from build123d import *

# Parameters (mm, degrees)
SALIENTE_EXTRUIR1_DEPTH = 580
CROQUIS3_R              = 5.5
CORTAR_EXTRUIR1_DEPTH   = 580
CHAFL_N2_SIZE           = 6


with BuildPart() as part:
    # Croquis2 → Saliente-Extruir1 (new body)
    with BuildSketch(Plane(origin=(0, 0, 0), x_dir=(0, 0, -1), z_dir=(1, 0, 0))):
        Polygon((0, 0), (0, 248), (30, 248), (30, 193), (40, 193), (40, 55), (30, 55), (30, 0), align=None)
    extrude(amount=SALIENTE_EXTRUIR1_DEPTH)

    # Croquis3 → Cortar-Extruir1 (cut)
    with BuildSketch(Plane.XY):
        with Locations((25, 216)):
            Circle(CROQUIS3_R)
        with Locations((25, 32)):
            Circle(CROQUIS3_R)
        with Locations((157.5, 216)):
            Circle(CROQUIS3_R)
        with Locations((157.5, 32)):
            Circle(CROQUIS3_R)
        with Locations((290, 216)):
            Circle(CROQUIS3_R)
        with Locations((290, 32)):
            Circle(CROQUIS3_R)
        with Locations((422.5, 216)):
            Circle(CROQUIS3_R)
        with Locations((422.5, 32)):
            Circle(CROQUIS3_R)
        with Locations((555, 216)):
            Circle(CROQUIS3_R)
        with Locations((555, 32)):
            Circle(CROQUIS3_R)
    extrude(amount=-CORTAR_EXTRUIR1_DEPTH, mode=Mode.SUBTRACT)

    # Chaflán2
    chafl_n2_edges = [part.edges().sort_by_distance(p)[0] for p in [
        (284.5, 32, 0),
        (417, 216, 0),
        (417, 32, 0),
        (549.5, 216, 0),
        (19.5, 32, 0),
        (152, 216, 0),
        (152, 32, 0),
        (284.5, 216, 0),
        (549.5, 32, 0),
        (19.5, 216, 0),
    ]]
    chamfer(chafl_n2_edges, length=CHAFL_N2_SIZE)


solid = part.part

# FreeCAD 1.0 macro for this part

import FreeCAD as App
import Part
import Sketcher
from FreeCAD import Vector
Q = App.Units.Quantity


def edges_at(feature, points):
    """Names of the edges that pass closest to the given points."""
    edges = feature.Shape.Edges
    near = lambda p: min(range(len(edges)), key=lambda i: edges[i].distToShape(Part.Vertex(*p))[0])
    return sorted({f"Edge{near(p) + 1}" for p in points})


def add_polygon(sketch, points):
    """Adds a closed chain of lines whose ends are joined by coincident constraints."""
    first, n = sketch.GeometryCount, len(points)
    for a, b in zip(points, points[1:] + points[:1]):
        sketch.addGeometry(Part.LineSegment(App.Vector(*a, 0), App.Vector(*b, 0)), False)
    for i in range(n):
        sketch.addConstraint(Sketcher.Constraint("Coincident", first + i, 2, first + (i + 1) % n, 1))

doc = App.newDocument("Part")
body = doc.addObject("PartDesign::Body", "Body")

# Sketch on YZ plane
sketch1 = body.newObject("Sketcher::SketchObject", "Sketch")
sketch1.AttachmentSupport = (doc.getObject("YZ_Plane"), [""])
sketch1.MapMode = "FlatFace"
add_polygon(sketch1, [(248, 0), (0, 0), (0, -30), (55, -30), (55, -40), (193, -40), (193, -30), (248, -30)])  # lines 0-7
sketch1.addConstraint([
    Sketcher.Constraint("Horizontal", 0),
    Sketcher.Constraint("Vertical", 1),
    Sketcher.Constraint("Horizontal", 2),
    Sketcher.Constraint("Vertical", 3),
    Sketcher.Constraint("Horizontal", 4),
    Sketcher.Constraint("Vertical", 5),
    Sketcher.Constraint("Horizontal", 6),
    Sketcher.Constraint("Vertical", 7),
    Sketcher.Constraint("Coincident", 0, 2, -1, 1),
    Sketcher.Constraint("Horizontal", 2, 2, 5, 2),
    Sketcher.Constraint("Equal", 2, 6),
    Sketcher.Constraint("DistanceX", 0, 2, 0, 1, Q("248 mm")),
    Sketcher.Constraint("DistanceX", 2, 1, 2, 2, Q("55 mm")),
    Sketcher.Constraint("DistanceY", 1, 2, 1, 1, Q("30 mm")),
    Sketcher.Constraint("DistanceY", 3, 2, 3, 1, Q("10 mm")),
])
pad1 = body.newObject("PartDesign::Pad", "Pad")
pad1.Profile = sketch1
pad1.Length = 580

# Sketch on XY plane
sketch2 = body.newObject("Sketcher::SketchObject", "Sketch001")
sketch2.AttachmentSupport = (doc.getObject("XY_Plane"), [""])
sketch2.MapMode = "FlatFace"
sketch2.addGeometry([
    Part.Circle(Vector(25, 216, 0), Vector(0, 0, 1), 6),  # 0
    Part.Circle(Vector(25, 32, 0), Vector(0, 0, 1), 6),  # 1
    Part.Circle(Vector(158, 216, 0), Vector(0, 0, 1), 6),  # 2
    Part.Circle(Vector(158, 32, 0), Vector(0, 0, 1), 6),  # 3
    Part.Circle(Vector(290, 216, 0), Vector(0, 0, 1), 6),  # 4
    Part.Circle(Vector(290, 32, 0), Vector(0, 0, 1), 6),  # 5
    Part.Circle(Vector(422, 216, 0), Vector(0, 0, 1), 6),  # 6
    Part.Circle(Vector(422, 32, 0), Vector(0, 0, 1), 6),  # 7
    Part.Circle(Vector(555, 216, 0), Vector(0, 0, 1), 6),  # 8
    Part.Circle(Vector(555, 32, 0), Vector(0, 0, 1), 6),  # 9
], False)
sketch2.addConstraint([
    Sketcher.Constraint("Equal", 0, 1),
    Sketcher.Constraint("Equal", 1, 2),
    Sketcher.Constraint("Equal", 2, 3),
    Sketcher.Constraint("Equal", 3, 4),
    Sketcher.Constraint("Equal", 4, 5),
    Sketcher.Constraint("Equal", 5, 6),
    Sketcher.Constraint("Equal", 6, 7),
    Sketcher.Constraint("Equal", 7, 8),
    Sketcher.Constraint("Equal", 8, 9),
    Sketcher.Constraint("Horizontal", 0, 3, 2, 3),
    Sketcher.Constraint("Horizontal", 1, 3, 3, 3),
    Sketcher.Constraint("Horizontal", 2, 3, 4, 3),
    Sketcher.Constraint("Horizontal", 3, 3, 5, 3),
    Sketcher.Constraint("Horizontal", 4, 3, 6, 3),
    Sketcher.Constraint("Horizontal", 5, 3, 7, 3),
    Sketcher.Constraint("Horizontal", 6, 3, 8, 3),
    Sketcher.Constraint("Horizontal", 7, 3, 9, 3),
    Sketcher.Constraint("Vertical", 0, 3, 1, 3),
    Sketcher.Constraint("Vertical", 2, 3, 3, 3),
    Sketcher.Constraint("Vertical", 4, 3, 5, 3),
    Sketcher.Constraint("Vertical", 6, 3, 7, 3),
    Sketcher.Constraint("Vertical", 8, 3, 9, 3),
    Sketcher.Constraint("Diameter", 0, Q("11 mm")),
    Sketcher.Constraint("DistanceX", -1, 1, 0, 3, Q("25 mm")),
    Sketcher.Constraint("DistanceY", -1, 1, 0, 3, Q("216 mm")),
    Sketcher.Constraint("DistanceY", -1, 1, 1, 3, Q("32 mm")),
    Sketcher.Constraint("DistanceX", -1, 1, 4, 3, Q("290 mm")),
    Sketcher.Constraint("DistanceX", -1, 1, 8, 3, Q("555 mm")),
    Sketcher.Constraint("DistanceX", 2, 3, 6, 3, Q("265 mm")),
    Sketcher.Constraint("DistanceX", -1, 1, 2, 3, Q("157.5 mm")),
])
pocket1 = body.newObject("PartDesign::Pocket", "Pocket")
pocket1.Profile = sketch2
pocket1.Length = 580
doc.recompute()

chamfer = body.newObject("PartDesign::Chamfer", "Chamfer")
chamfer.Base = (pocket1, edges_at(pocket1, [
    (284.5, 32, 0),
    (417, 216, 0),
    (417, 32, 0),
    (549.5, 216, 0),
    (19.5, 32, 0),
    (152, 216, 0),
    (152, 32, 0),
    (284.5, 216, 0),
    (549.5, 32, 0),
    (19.5, 216, 0),
]))
chamfer.Size = 6

doc.recompute()
